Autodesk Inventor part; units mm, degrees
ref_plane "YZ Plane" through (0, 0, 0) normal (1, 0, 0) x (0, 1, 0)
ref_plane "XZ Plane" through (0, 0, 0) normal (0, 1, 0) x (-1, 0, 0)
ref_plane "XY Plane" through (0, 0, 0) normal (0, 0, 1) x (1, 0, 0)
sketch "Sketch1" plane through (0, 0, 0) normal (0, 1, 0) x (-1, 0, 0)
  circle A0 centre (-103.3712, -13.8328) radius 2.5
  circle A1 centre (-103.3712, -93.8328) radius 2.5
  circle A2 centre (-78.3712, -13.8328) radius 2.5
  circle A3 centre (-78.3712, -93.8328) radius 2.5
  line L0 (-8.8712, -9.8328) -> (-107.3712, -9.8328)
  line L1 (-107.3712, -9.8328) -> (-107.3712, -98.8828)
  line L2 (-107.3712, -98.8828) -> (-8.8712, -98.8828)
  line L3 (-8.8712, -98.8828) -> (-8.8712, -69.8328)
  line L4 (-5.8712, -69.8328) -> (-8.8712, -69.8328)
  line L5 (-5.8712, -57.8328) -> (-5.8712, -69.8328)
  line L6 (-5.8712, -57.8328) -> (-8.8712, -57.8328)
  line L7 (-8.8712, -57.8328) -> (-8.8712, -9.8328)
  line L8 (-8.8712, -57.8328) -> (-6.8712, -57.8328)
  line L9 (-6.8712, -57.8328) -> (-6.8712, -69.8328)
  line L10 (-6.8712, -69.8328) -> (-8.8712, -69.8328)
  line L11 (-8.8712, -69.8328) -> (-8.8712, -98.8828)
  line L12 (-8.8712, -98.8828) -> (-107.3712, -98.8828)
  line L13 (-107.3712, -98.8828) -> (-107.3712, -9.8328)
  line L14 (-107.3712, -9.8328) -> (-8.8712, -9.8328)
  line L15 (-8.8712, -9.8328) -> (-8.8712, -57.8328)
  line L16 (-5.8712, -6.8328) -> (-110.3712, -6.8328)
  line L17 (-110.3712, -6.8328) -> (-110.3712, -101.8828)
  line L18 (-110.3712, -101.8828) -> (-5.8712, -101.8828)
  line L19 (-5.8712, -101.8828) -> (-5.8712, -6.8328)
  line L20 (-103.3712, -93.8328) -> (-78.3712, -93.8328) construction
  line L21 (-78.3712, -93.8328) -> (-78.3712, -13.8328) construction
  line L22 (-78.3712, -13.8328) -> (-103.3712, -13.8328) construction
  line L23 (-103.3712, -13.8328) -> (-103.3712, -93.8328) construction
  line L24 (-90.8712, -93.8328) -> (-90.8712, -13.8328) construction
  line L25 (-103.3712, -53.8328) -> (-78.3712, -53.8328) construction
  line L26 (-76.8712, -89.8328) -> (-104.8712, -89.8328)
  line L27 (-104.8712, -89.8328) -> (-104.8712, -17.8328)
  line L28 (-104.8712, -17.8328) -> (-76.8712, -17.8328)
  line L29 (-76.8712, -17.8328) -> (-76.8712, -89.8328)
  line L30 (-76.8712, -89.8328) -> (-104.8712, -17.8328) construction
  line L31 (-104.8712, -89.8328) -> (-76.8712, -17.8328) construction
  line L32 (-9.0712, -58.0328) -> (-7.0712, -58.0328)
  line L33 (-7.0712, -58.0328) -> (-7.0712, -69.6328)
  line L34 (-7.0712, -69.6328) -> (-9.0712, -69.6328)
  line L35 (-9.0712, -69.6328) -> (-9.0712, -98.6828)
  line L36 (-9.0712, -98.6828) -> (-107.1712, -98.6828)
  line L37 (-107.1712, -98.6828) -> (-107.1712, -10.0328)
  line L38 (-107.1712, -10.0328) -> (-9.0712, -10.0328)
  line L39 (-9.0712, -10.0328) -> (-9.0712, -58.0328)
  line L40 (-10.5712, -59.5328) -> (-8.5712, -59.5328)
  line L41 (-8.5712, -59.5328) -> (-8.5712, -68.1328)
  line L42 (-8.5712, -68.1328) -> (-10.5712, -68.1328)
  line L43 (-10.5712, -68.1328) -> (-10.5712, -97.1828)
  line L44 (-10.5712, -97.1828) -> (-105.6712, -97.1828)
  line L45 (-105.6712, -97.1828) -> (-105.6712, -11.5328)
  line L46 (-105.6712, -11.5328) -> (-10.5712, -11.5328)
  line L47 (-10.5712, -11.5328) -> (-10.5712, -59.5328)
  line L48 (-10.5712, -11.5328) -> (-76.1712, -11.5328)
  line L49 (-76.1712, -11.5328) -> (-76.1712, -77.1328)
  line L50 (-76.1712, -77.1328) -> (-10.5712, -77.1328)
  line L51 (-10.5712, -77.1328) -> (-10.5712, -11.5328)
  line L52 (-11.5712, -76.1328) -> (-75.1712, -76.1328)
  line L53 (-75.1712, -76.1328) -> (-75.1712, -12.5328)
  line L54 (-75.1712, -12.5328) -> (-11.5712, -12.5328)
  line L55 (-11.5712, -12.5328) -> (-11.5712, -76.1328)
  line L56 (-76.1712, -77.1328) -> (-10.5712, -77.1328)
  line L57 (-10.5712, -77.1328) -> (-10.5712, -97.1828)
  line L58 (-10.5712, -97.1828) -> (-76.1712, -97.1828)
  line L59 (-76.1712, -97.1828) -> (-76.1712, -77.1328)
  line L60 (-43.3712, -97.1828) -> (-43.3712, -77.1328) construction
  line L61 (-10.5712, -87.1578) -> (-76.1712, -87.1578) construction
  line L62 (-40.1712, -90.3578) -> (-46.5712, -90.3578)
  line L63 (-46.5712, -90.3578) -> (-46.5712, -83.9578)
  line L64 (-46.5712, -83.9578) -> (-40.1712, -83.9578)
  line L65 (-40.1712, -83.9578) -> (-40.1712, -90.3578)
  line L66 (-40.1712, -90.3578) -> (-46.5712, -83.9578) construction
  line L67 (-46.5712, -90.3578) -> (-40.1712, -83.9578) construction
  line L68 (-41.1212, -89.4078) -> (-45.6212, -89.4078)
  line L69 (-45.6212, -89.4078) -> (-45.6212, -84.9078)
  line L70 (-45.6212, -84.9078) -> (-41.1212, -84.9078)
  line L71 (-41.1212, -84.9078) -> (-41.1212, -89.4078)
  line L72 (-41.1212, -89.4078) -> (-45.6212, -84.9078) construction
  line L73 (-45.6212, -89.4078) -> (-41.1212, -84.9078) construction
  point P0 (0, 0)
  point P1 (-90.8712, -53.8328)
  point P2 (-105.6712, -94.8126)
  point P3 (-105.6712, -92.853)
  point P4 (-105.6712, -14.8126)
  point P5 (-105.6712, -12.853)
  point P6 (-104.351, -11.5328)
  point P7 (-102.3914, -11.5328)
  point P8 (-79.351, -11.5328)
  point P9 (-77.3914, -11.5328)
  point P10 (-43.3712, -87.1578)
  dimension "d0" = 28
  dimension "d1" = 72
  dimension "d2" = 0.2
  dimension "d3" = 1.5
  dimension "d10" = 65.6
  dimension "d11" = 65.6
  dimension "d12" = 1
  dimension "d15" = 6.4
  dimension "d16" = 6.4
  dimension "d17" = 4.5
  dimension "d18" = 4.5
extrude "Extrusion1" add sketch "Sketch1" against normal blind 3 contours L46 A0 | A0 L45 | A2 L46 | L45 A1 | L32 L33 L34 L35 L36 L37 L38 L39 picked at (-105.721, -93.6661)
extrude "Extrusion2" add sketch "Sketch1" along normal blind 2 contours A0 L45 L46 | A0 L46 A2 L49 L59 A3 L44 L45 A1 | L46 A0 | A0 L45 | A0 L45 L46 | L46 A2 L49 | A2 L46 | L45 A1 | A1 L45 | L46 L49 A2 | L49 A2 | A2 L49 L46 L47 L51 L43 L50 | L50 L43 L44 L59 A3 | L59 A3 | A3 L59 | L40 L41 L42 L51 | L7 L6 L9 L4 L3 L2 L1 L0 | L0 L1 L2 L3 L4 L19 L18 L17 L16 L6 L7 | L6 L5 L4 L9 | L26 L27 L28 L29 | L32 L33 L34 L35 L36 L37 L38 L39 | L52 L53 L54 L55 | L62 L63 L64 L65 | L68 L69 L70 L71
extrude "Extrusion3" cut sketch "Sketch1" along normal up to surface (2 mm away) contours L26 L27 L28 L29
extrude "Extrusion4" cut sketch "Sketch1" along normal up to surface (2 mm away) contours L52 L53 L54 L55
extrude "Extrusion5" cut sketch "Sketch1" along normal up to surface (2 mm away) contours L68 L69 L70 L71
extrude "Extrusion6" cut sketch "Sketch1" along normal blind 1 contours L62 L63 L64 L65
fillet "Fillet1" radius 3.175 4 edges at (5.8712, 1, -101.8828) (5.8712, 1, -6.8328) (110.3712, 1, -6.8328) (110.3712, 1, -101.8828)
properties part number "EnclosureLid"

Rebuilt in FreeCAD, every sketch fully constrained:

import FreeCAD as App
import Part
import Sketcher

V = App.Vector


def edges_at(feature, points):
    """Names of the edges that pass closest to the given points."""
    edges = feature.Shape.Edges
    near = lambda p: min(range(len(edges)), key=lambda i: edges[i].distToShape(Part.Vertex(*p))[0])
    return sorted({f"Edge{near(p) + 1}" for p in points})


def add_polygon(sketch, points):
    """Adds a closed chain of lines whose ends are joined by coincident constraints."""
    first, n = sketch.GeometryCount, len(points)
    for a, b in zip(points, points[1:] + points[:1]):
        sketch.addGeometry(Part.LineSegment(App.Vector(*a, 0), App.Vector(*b, 0)), False)
    for i in range(n):
        sketch.addConstraint(Sketcher.Constraint("Coincident", first + i, 2, first + (i + 1) % n, 1))

doc = App.newDocument("Part")
body = doc.addObject("PartDesign::Body", "Body")

# Sketch on XZ plane
sketch1 = doc.addObject("Sketcher::SketchObject", "Sketch")
body.addObject(sketch1)
sketch1.AttachmentSupport = (doc.XZ_Plane, [""])
sketch1.MapMode = "FlatFace"
add_polygon(sketch1, [(7.1, -58), (9.1, -58), (9.1, -10), (107.2, -10), (107.2, -98.7), (9.1, -98.7), (9.1, -69.6), (7.1, -69.6)])  # lines 0-7
add_polygon(sketch1, [(10.6, -11.5), (10.6, -59.5), (8.6, -59.5), (8.6, -68.1), (10.6, -68.1), (10.6, -97.2), (105.7, -97.2), (105.7, -11.5)])  # lines 8-15
sketch1.addConstraint([
    Sketcher.Constraint("Horizontal", 0),
    Sketcher.Constraint("Vertical", 1),
    Sketcher.Constraint("Horizontal", 2),
    Sketcher.Constraint("Vertical", 3),
    Sketcher.Constraint("Horizontal", 4),
    Sketcher.Constraint("Vertical", 5),
    Sketcher.Constraint("Horizontal", 6),
    Sketcher.Constraint("Vertical", 7),
    Sketcher.Constraint("Vertical", 8),
    Sketcher.Constraint("Horizontal", 9),
    Sketcher.Constraint("Vertical", 10),
    Sketcher.Constraint("Horizontal", 11),
    Sketcher.Constraint("Vertical", 12),
    Sketcher.Constraint("Horizontal", 13),
    Sketcher.Constraint("Vertical", 14),
    Sketcher.Constraint("Horizontal", 15),
    Sketcher.Constraint("Vertical", 1, 2, 4, 2),
    Sketcher.Constraint("Vertical", 8, 2, 11, 2),
    Sketcher.Constraint("Equal", 6, 9),
    Sketcher.Constraint("Equal", 1, 8),
    Sketcher.Constraint("Equal", 5, 12),
    Sketcher.Constraint("DistanceX", 0, 2, 8, 2, 1.5),
    Sketcher.Constraint("DistanceY", 8, 2, 0, 2, 1.5),
    Sketcher.Constraint("DistanceY", 5, 2, 10, 2, 1.5),
    Sketcher.Constraint("DistanceX", 13, 2, 3, 2, 1.5),
    Sketcher.Constraint("DistanceX", 0, 1, 0, 2, 2.0),
    Sketcher.Constraint("DistanceY", 1, 1, 1, 2, 48.0),
    Sketcher.Constraint("DistanceX", 2, 1, 2, 2, 98.1),
    Sketcher.Constraint("DistanceY", 7, 1, 7, 2, 11.6),
    Sketcher.Constraint("DistanceY", 3, 2, 3, 1, 88.65),
    Sketcher.Constraint("DistanceX", -1, 1, 0, 2, 9.0712),
    Sketcher.Constraint("DistanceY", 0, 2, -1, 1, 58.0328),
])
pad1 = doc.addObject("PartDesign::Pad", "Pad")
body.addObject(pad1)
pad1.Profile = sketch1
pad1.Length = 3

# Sketch on XZ plane
sketch2 = doc.addObject("Sketcher::SketchObject", "Sketch001")
body.addObject(sketch2)
sketch2.AttachmentSupport = (doc.XZ_Plane, [""])
sketch2.MapMode = "FlatFace"
add_polygon(sketch2, [(110, -102), (6, -102), (6, -7), (110, -7)])  # lines 0-3
sketch2.addConstraint([
    Sketcher.Constraint("Horizontal", 0),
    Sketcher.Constraint("Vertical", 1),
    Sketcher.Constraint("Horizontal", 2),
    Sketcher.Constraint("Vertical", 3),
    Sketcher.Constraint("DistanceX", 0, 2, 0, 1, 104.5),
    Sketcher.Constraint("DistanceY", 1, 1, 1, 2, 95.05),
    Sketcher.Constraint("DistanceX", -1, 1, 0, 2, 5.8712),
    Sketcher.Constraint("DistanceY", 0, 2, -1, 1, 101.8828),
])
pad2 = doc.addObject("PartDesign::Pad", "Pad001")
body.addObject(pad2)
pad2.Profile = sketch2
pad2.Length = 2
pad2.Reversed = True

# Sketch on XZ plane
sketch3 = doc.addObject("Sketcher::SketchObject", "Sketch002")
body.addObject(sketch3)
sketch3.AttachmentSupport = (doc.XZ_Plane, [""])
sketch3.MapMode = "FlatFace"
add_polygon(sketch3, [(105, -90), (77, -90), (77, -18), (105, -18)])  # lines 0-3
sketch3.addConstraint([
    Sketcher.Constraint("Horizontal", 0),
    Sketcher.Constraint("Vertical", 1),
    Sketcher.Constraint("Horizontal", 2),
    Sketcher.Constraint("Vertical", 3),
    Sketcher.Constraint("DistanceX", 0, 2, 0, 1, 28.0),
    Sketcher.Constraint("DistanceY", 1, 1, 1, 2, 72.0),
    Sketcher.Constraint("DistanceX", -1, 1, 0, 2, 76.8712),
    Sketcher.Constraint("DistanceY", 0, 2, -1, 1, 89.8328),
])
pocket1 = doc.addObject("PartDesign::Pocket", "Pocket")
body.addObject(pocket1)
pocket1.Profile = sketch3
pocket1.Length = 2

# Sketch on XZ plane
sketch4 = doc.addObject("Sketcher::SketchObject", "Sketch003")
body.addObject(sketch4)
sketch4.AttachmentSupport = (doc.XZ_Plane, [""])
sketch4.MapMode = "FlatFace"
add_polygon(sketch4, [(75, -76), (12, -76), (12, -13), (75, -13)])  # lines 0-3
sketch4.addConstraint([
    Sketcher.Constraint("Horizontal", 0),
    Sketcher.Constraint("Vertical", 1),
    Sketcher.Constraint("Horizontal", 2),
    Sketcher.Constraint("Vertical", 3),
    Sketcher.Constraint("Equal", 2, 1),
    Sketcher.Constraint("DistanceX", 0, 2, 0, 1, 63.6),
    Sketcher.Constraint("DistanceX", -1, 1, 0, 2, 11.5712),
    Sketcher.Constraint("DistanceY", 0, 2, -1, 1, 76.1328),
])
pocket2 = doc.addObject("PartDesign::Pocket", "Pocket001")
body.addObject(pocket2)
pocket2.Profile = sketch4
pocket2.Length = 2

# Sketch on XZ plane
sketch5 = doc.addObject("Sketcher::SketchObject", "Sketch004")
body.addObject(sketch5)
sketch5.AttachmentSupport = (doc.XZ_Plane, [""])
sketch5.MapMode = "FlatFace"
add_polygon(sketch5, [(45.6, -89.4), (41.1, -89.4), (41.1, -84.9), (45.6, -84.9)])  # lines 0-3
sketch5.addConstraint([
    Sketcher.Constraint("Horizontal", 0),
    Sketcher.Constraint("Vertical", 1),
    Sketcher.Constraint("Horizontal", 2),
    Sketcher.Constraint("Vertical", 3),
    Sketcher.Constraint("Equal", 2, 1),
    Sketcher.Constraint("DistanceX", 0, 2, 0, 1, 4.5),
    Sketcher.Constraint("DistanceX", -1, 1, 0, 2, 41.1212),
    Sketcher.Constraint("DistanceY", 0, 2, -1, 1, 89.4078),
])
pocket3 = doc.addObject("PartDesign::Pocket", "Pocket002")
body.addObject(pocket3)
pocket3.Profile = sketch5
pocket3.Length = 2

# Sketch on XZ plane
sketch6 = doc.addObject("Sketcher::SketchObject", "Sketch005")
body.addObject(sketch6)
sketch6.AttachmentSupport = (doc.XZ_Plane, [""])
sketch6.MapMode = "FlatFace"
add_polygon(sketch6, [(46.6, -90.4), (40.2, -90.4), (40.2, -84), (46.6, -84)])  # lines 0-3
add_polygon(sketch6, [(41.1, -84.9), (41.1, -89.4), (45.6, -89.4), (45.6, -84.9)])  # lines 4-7
sketch6.addConstraint([
    Sketcher.Constraint("Horizontal", 0),
    Sketcher.Constraint("Vertical", 1),
    Sketcher.Constraint("Horizontal", 2),
    Sketcher.Constraint("Vertical", 3),
    Sketcher.Constraint("Vertical", 4),
    Sketcher.Constraint("Horizontal", 5),
    Sketcher.Constraint("Vertical", 6),
    Sketcher.Constraint("Horizontal", 7),
    Sketcher.Constraint("Equal", 2, 1),
    Sketcher.Constraint("Equal", 7, 4),
    Sketcher.Constraint("DistanceX", 0, 2, 0, 1, 6.4),
    Sketcher.Constraint("DistanceX", 5, 1, 5, 2, 4.5),
    Sketcher.Constraint("DistanceX", 0, 2, 4, 2, 0.95),
    Sketcher.Constraint("DistanceY", 0, 2, 4, 2, 0.95),
    Sketcher.Constraint("DistanceX", -1, 1, 0, 2, 40.1712),
    Sketcher.Constraint("DistanceY", 0, 2, -1, 1, 90.3578),
])
pocket4 = doc.addObject("PartDesign::Pocket", "Pocket003")
body.addObject(pocket4)
pocket4.Profile = sketch6
pocket4.Length = 1
doc.recompute()

fillet = doc.addObject("PartDesign::Fillet", "Fillet")
body.addObject(fillet)
fillet.Base = (pocket4, edges_at(pocket4, [
    (5.871, 1, -101.883),
    (5.871, 1, -6.833),
    (110.371, 1, -6.833),
    (110.371, 1, -101.883),
]))
fillet.Radius = 3.175

doc.recompute()
